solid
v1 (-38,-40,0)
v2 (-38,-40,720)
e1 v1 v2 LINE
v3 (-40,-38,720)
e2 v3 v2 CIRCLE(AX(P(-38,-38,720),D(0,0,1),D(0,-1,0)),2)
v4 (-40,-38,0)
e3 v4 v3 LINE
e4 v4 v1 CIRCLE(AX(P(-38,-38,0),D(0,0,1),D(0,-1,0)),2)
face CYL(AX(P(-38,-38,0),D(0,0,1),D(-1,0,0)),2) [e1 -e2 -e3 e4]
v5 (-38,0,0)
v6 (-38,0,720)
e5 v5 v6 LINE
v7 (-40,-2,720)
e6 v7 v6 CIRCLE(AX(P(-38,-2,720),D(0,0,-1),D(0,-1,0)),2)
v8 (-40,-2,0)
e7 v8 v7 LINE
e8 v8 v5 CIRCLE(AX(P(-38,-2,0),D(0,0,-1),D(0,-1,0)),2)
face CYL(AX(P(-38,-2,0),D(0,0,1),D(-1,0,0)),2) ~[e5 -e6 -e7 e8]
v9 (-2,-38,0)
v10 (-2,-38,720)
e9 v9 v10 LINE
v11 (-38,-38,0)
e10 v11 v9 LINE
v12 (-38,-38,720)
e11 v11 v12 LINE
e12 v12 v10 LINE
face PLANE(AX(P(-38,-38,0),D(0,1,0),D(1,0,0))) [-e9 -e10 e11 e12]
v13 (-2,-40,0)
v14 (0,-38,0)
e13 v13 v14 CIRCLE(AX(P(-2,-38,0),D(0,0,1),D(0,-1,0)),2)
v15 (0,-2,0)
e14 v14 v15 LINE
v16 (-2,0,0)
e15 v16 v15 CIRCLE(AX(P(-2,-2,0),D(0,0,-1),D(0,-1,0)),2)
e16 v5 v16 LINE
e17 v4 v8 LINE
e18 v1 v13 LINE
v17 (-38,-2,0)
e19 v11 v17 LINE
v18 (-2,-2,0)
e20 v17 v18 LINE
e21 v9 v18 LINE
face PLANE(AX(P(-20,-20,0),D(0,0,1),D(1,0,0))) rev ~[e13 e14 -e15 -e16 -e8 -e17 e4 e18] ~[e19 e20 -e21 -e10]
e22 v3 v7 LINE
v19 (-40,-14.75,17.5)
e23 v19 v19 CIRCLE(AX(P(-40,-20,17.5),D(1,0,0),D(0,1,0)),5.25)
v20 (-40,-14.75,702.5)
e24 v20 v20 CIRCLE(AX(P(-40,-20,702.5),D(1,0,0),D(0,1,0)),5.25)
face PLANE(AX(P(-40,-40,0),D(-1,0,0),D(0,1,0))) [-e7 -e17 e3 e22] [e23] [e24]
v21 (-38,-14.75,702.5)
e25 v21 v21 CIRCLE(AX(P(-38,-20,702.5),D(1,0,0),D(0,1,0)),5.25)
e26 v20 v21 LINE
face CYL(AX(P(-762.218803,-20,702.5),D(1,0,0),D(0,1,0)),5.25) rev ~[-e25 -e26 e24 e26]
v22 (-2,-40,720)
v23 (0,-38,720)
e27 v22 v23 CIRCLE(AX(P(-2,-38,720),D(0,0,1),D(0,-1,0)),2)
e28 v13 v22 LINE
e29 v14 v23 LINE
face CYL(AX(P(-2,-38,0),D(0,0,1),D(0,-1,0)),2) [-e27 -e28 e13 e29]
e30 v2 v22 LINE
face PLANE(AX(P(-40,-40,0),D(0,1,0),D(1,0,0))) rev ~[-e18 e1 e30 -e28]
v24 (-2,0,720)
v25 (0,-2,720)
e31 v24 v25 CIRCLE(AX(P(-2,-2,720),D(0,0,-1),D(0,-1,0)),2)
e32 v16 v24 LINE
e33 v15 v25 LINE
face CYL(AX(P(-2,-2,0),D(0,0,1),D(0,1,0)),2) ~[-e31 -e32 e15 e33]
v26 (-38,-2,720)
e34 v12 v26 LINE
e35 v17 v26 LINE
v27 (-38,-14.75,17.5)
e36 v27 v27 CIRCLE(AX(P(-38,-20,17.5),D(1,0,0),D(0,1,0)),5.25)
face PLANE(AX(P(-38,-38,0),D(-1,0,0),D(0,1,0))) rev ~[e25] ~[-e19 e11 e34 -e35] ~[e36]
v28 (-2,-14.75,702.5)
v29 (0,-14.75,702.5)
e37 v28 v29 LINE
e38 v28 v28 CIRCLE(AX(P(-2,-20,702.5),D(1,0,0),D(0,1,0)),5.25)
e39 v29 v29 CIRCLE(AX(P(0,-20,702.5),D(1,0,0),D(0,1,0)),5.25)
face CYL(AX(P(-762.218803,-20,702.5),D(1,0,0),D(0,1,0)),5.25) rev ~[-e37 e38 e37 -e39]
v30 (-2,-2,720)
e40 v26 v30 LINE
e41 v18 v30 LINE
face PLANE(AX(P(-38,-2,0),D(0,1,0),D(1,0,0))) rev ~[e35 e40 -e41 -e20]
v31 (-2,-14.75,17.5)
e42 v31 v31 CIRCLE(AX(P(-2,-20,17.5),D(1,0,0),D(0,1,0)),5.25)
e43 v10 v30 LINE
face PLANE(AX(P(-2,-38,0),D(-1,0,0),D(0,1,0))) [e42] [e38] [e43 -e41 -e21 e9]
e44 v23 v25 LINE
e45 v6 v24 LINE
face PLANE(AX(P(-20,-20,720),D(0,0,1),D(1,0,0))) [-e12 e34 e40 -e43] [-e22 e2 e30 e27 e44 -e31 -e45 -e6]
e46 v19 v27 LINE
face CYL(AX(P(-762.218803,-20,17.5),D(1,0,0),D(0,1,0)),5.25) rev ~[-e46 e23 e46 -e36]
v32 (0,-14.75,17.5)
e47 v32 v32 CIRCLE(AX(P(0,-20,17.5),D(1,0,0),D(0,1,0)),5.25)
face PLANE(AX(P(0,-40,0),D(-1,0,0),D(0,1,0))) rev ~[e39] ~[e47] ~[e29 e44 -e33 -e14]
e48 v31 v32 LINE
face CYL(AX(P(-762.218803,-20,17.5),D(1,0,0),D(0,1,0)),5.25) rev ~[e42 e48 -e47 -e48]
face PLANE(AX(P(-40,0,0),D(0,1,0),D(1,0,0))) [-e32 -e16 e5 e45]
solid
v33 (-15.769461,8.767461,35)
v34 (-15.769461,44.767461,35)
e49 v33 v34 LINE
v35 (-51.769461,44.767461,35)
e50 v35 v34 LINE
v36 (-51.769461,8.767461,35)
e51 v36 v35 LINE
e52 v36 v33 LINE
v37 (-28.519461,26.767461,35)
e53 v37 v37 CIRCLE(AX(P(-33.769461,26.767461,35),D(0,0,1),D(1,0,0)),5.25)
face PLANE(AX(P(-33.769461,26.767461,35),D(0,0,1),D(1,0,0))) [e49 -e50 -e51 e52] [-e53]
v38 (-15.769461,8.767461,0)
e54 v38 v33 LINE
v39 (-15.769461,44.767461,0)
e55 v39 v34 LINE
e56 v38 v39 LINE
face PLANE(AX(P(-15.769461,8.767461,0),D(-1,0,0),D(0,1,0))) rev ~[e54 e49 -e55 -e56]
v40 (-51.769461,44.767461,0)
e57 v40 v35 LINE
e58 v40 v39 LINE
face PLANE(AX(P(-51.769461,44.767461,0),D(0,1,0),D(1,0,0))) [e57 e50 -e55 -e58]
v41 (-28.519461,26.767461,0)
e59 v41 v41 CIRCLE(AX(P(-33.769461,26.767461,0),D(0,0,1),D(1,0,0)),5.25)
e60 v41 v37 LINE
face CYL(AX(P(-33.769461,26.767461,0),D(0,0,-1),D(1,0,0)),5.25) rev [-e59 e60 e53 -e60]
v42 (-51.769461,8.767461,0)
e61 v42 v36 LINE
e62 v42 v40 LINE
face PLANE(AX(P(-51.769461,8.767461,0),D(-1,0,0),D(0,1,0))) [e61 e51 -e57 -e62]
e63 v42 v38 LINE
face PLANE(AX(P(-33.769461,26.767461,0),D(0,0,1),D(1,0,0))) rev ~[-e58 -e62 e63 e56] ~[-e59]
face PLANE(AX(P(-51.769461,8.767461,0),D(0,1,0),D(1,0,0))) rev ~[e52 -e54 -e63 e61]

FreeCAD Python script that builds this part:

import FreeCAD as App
import Part
import Sketcher

V = App.Vector


def edges_at(feature, points):
    """Names of the edges that pass closest to the given points."""
    edges = feature.Shape.Edges
    near = lambda p: min(range(len(edges)), key=lambda i: edges[i].distToShape(Part.Vertex(*p))[0])
    return sorted({f"Edge{near(p) + 1}" for p in points})


def add_polygon(sketch, points):
    """Adds a closed chain of lines whose ends are joined by coincident constraints."""
    first, n = sketch.GeometryCount, len(points)
    for a, b in zip(points, points[1:] + points[:1]):
        sketch.addGeometry(Part.LineSegment(App.Vector(*a, 0), App.Vector(*b, 0)), False)
    for i in range(n):
        sketch.addConstraint(Sketcher.Constraint("Coincident", first + i, 2, first + (i + 1) % n, 1))

doc = App.newDocument("Part")
body = doc.addObject("PartDesign::Body", "Body")

sketch1 = body.newObject("Sketcher::SketchObject", "Sketch")
sketch1.AttachmentSupport = (doc.getObject("XY_Plane"), [""])
sketch1.MapMode = "FlatFace"
add_polygon(sketch1, [(-40, 0), (-40, -40), (0, -40), (0, 0)])
add_polygon(sketch1, [(-2, -38), (-38, -38), (-38, -2), (-2, -2)])
sketch1.addConstraint([
    Sketcher.Constraint("Vertical", 0),
    Sketcher.Constraint("Horizontal", 1),
    Sketcher.Constraint("Vertical", 2),
    Sketcher.Constraint("Horizontal", 3),
    Sketcher.Constraint("Horizontal", 4),
    Sketcher.Constraint("Vertical", 5),
    Sketcher.Constraint("Horizontal", 6),
    Sketcher.Constraint("Vertical", 7),
    Sketcher.Constraint("Coincident", 2, 2, -1, 1),
    Sketcher.Constraint("Equal", 3, 0),
    Sketcher.Constraint("Equal", 6, 5),
    Sketcher.Constraint("DistanceX", 1, 1, 1, 2, 40.0),
    Sketcher.Constraint("DistanceX", 4, 2, 4, 1, 36.0),
    Sketcher.Constraint("DistanceX", 4, 2, -1, 1, 38.0),
    Sketcher.Constraint("DistanceY", 4, 2, -1, 1, 38.0),
])
pad1 = body.newObject("PartDesign::Pad", "Pad")
pad1.Profile = sketch1
pad1.Length = 720

sketch2 = body.newObject("Sketcher::SketchObject", "Sketch001")
sketch2.AttachmentSupport = (doc.getObject("YZ_Plane"), [""])
sketch2.MapMode = "FlatFace"
sketch2.AttachmentOffset = App.Placement(V(0, 0, -40), App.Rotation())
sketch2.addGeometry(Part.Circle(V(-20, 17.5, 0), V(0, 0, 1), 5.25), False)
sketch2.addConstraint([
    Sketcher.Constraint("Diameter", 0, 10.5),
    Sketcher.Constraint("DistanceX", 0, 3, -1, 1, 20.0),
    Sketcher.Constraint("DistanceY", -1, 1, 0, 3, 17.5),
])
doc.recompute()
hole = body.newObject("PartDesign::Hole", "Hole")
hole.Profile = sketch2
hole.ThreadType = "None"
hole.Diameter = 10.5
hole.DepthType = "ThroughAll"
hole.Reversed = True

sketch3 = body.newObject("Sketcher::SketchObject", "Sketch002")
sketch3.AttachmentSupport = (doc.getObject("YZ_Plane"), [""])
sketch3.MapMode = "FlatFace"
sketch3.AttachmentOffset = App.Placement(V(0, 0, -40), App.Rotation())
sketch3.addGeometry(Part.Circle(V(-20, 702.5, 0), V(0, 0, 1), 5.25), False)
sketch3.addConstraint([
    Sketcher.Constraint("Diameter", 0, 10.5),
    Sketcher.Constraint("DistanceX", 0, 3, -1, 1, 20.0),
    Sketcher.Constraint("DistanceY", -1, 1, 0, 3, 702.5),
])
doc.recompute()
hole2 = body.newObject("PartDesign::Hole", "Hole001")
hole2.Profile = sketch3
hole2.ThreadType = "None"
hole2.Diameter = 10.5
hole2.DepthType = "ThroughAll"
hole2.Reversed = True
doc.recompute()

fillet = body.newObject("PartDesign::Fillet", "Fillet")
fillet.Base = (hole2, edges_at(hole2, [
    (0, -40, 360),
    (0, 0, 360),
    (-40, -40, 360),
    (-40, 0, 360),
]))
fillet.Radius = 2
body2 = doc.addObject("PartDesign::Body", "Body001")

sketch4 = body2.newObject("Sketcher::SketchObject", "Sketch003")
sketch4.AttachmentSupport = (doc.getObject("XY_Plane001"), [""])
sketch4.MapMode = "FlatFace"
add_polygon(sketch4, [(-51.769461, 44.767461), (-51.769461, 8.767461), (-15.769461, 8.767461), (-15.769461, 44.767461)])
sketch4.addGeometry(Part.Circle(V(-33.769461, 26.767461, 0), V(0, 0, 1), 5.25), False)
sketch4.addConstraint([
    Sketcher.Constraint("Vertical", 0),
    Sketcher.Constraint("Horizontal", 1),
    Sketcher.Constraint("Vertical", 2),
    Sketcher.Constraint("Horizontal", 3),
    Sketcher.Constraint("Equal", 3, 0),
    Sketcher.Constraint("Diameter", 4, 10.5),
    Sketcher.Constraint("DistanceX", 1, 1, 1, 2, 36.0),
    Sketcher.Constraint("DistanceX", 0, 2, 4, 3, 18.0),
    Sketcher.Constraint("DistanceY", 0, 2, 4, 3, 18.0),
    Sketcher.Constraint("DistanceX", 4, 3, -1, 1, 33.769461),
    Sketcher.Constraint("DistanceY", -1, 1, 4, 3, 26.767461),
])
pad2 = body2.newObject("PartDesign::Pad", "Pad001")
pad2.Profile = sketch4
pad2.Length = 35

doc.recompute()
